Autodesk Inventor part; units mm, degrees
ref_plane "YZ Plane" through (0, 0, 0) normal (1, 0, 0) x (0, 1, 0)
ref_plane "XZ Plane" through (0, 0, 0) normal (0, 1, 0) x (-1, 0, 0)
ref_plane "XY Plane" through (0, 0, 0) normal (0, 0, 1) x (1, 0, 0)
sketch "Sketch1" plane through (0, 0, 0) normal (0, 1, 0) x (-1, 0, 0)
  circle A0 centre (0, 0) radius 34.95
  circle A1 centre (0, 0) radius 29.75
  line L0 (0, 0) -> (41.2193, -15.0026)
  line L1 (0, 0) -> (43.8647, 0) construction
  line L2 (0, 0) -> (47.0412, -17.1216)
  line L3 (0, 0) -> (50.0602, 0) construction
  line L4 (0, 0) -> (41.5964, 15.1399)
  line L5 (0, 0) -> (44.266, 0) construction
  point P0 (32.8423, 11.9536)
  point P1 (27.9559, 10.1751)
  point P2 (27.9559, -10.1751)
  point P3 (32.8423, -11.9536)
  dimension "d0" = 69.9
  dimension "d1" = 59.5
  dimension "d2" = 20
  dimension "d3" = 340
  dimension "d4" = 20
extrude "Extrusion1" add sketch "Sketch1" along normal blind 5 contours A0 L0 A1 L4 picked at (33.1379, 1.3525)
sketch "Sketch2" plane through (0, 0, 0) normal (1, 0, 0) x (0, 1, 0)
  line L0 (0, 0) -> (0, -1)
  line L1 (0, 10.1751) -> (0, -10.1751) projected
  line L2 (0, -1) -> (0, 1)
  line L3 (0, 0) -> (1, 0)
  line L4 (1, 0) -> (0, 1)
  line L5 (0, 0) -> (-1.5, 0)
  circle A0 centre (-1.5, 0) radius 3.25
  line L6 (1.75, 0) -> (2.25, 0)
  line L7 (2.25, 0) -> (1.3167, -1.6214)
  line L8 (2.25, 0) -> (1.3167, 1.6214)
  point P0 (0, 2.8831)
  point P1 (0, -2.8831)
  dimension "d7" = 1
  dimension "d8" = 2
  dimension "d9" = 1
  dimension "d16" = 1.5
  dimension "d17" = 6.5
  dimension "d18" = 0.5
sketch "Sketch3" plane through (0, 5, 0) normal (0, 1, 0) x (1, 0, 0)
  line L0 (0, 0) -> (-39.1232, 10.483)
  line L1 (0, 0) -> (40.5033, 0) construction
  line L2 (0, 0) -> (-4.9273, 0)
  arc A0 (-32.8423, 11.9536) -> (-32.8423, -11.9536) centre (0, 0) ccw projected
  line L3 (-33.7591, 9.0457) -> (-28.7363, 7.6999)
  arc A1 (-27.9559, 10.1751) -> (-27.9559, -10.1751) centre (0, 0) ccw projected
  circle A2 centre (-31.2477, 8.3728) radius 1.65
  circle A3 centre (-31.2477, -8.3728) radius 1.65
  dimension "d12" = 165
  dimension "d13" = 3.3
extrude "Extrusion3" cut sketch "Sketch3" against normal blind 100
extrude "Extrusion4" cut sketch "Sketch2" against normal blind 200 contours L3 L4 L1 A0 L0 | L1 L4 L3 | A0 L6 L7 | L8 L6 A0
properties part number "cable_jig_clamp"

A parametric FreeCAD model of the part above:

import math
import FreeCAD as App
import Part
import Sketcher
from FreeCAD import Vector
Q = App.Units.Quantity

doc = App.newDocument("Part")
body = doc.addObject("PartDesign::Body", "Body")

# Sketch on XZ plane
sketch1 = body.newObject("Sketcher::SketchObject", "Sketch")
sketch1.AttachmentSupport = (doc.getObject("XZ_Plane"), [""])
sketch1.MapMode = "FlatFace"
sketch1.addGeometry([
    Part.ArcOfCircle(Part.Circle(Vector(0, 0, 0), Vector(0, 0, 1), 34.95), math.radians(159.999941), math.radians(200.000003)),
    Part.LineSegment(Vector(-32.842245, 11.953638, 0), Vector(-27.955845, 10.175128, 0)),
    Part.ArcOfCircle(Part.Circle(Vector(0, 0, 0), Vector(0, 0, 1), 29.75), math.radians(159.999941), math.radians(200.000003)),
    Part.LineSegment(Vector(-27.955855, -10.1751, 0), Vector(-32.842257, -11.953605, 0)),
], False)
sketch1.addConstraint([
    Sketcher.Constraint("Coincident", 0, 1, 1, 1),
    Sketcher.Constraint("Coincident", 1, 2, 2, 1),
    Sketcher.Constraint("Coincident", 2, 2, 3, 1),
    Sketcher.Constraint("Coincident", 3, 2, 0, 2),
    Sketcher.Constraint("Coincident", 0, 3, -1, 1),
    Sketcher.Constraint("Coincident", 2, 3, -1, 1),
    Sketcher.Constraint("Vertical", 1, 2, 2, 2),
    Sketcher.Constraint("Vertical", 0, 1, 3, 2),
    Sketcher.Constraint("Angle", 1, Q("-20 deg")),
    Sketcher.Constraint("Radius", 0, Q("34.95 mm")),
    Sketcher.Constraint("Radius", 2, Q("29.75 mm")),
    Sketcher.Constraint("DistanceY", 2, 2, -1, 1, Q("10.175 mm")),
])
pad1 = body.newObject("PartDesign::Pad", "Pad")
pad1.Profile = sketch1
pad1.Length = 5
pad1.Reversed = True

# Sketch on XZ plane
sketch2 = body.newObject("Sketcher::SketchObject", "Sketch001")
sketch2.AttachmentSupport = (doc.getObject("XZ_Plane"), [""])
sketch2.MapMode = "FlatFace"
sketch2.AttachmentOffset = App.Placement(Vector(0, 0, -5), App.Rotation())
sketch2.addGeometry([
    Part.Circle(Vector(-31.2477, -8.3728, 0), Vector(0, 0, 1), 1.65),
    Part.Circle(Vector(-31.2477, 8.3728, 0), Vector(0, 0, 1), 1.65),
], False)
sketch2.addConstraint([
    Sketcher.Constraint("Equal", 0, 1),
    Sketcher.Constraint("Symmetric", 0, 3, 1, 3, -1),
    Sketcher.Constraint("Diameter", 0, Q("3.3 mm")),
    Sketcher.Constraint("DistanceX", 0, 3, -1, 1, Q("31.2477 mm")),
    Sketcher.Constraint("DistanceY", 0, 3, -1, 1, Q("8.3728 mm")),
])
pocket1 = body.newObject("PartDesign::Pocket", "Pocket")
pocket1.Profile = sketch2
pocket1.Length = 100
pocket1.Reversed = True

# Sketch on YZ plane
sketch3 = body.newObject("Sketcher::SketchObject", "Sketch002")
sketch3.AttachmentSupport = (doc.getObject("YZ_Plane"), [""])
sketch3.MapMode = "FlatFace"
sketch3.addGeometry([
    Part.LineSegment(Vector(0, 2.883141, 0), Vector(0, -2.883141, 0)),  # 0
    Part.ArcOfCircle(Part.Circle(Vector(-1.5, 0, 0), Vector(0, 0, 1), 3.25), math.radians(-62.513574), math.radians(-29.926373)),  # 1
    Part.LineSegment(Vector(1.3167, -1.6214, 0), Vector(2.25, 0, 0)),  # 2
    Part.LineSegment(Vector(2.25, 0, 0), Vector(1.3167, 1.6214, 0)),  # 3
    Part.ArcOfCircle(Part.Circle(Vector(-1.5, 0, 0), Vector(0, 0, 1), 3.25), math.radians(29.926373), math.radians(62.513574)),  # 4
], False)
sketch3.addConstraint([
    Sketcher.Constraint("Coincident", 0, 2, 1, 1),
    Sketcher.Constraint("Tangent", 1, 2, 2, 1),
    Sketcher.Constraint("Coincident", 2, 2, 3, 1),
    Sketcher.Constraint("Tangent", 3, 2, 4, 1),
    Sketcher.Constraint("Coincident", 4, 2, 0, 1),
    Sketcher.Constraint("Vertical", 0),
    Sketcher.Constraint("Coincident", 4, 3, 1, 3),
    Sketcher.Constraint("Equal", 1, 4),
    Sketcher.Constraint("Symmetric", 0, 2, 4, 2, -1, 1),
    Sketcher.Constraint("PointOnObject", 2, 2, -1),
    Sketcher.Constraint("Radius", 1, Q("3.25 mm")),
    Sketcher.Constraint("DistanceX", 1, 3, -1, 1, Q("1.5 mm")),
    Sketcher.Constraint("DistanceX", -1, 1, 2, 2, Q("2.25 mm")),
])
pocket2 = body.newObject("PartDesign::Pocket", "Pocket001")
pocket2.Profile = sketch3
pocket2.Length = 200

doc.recompute()
